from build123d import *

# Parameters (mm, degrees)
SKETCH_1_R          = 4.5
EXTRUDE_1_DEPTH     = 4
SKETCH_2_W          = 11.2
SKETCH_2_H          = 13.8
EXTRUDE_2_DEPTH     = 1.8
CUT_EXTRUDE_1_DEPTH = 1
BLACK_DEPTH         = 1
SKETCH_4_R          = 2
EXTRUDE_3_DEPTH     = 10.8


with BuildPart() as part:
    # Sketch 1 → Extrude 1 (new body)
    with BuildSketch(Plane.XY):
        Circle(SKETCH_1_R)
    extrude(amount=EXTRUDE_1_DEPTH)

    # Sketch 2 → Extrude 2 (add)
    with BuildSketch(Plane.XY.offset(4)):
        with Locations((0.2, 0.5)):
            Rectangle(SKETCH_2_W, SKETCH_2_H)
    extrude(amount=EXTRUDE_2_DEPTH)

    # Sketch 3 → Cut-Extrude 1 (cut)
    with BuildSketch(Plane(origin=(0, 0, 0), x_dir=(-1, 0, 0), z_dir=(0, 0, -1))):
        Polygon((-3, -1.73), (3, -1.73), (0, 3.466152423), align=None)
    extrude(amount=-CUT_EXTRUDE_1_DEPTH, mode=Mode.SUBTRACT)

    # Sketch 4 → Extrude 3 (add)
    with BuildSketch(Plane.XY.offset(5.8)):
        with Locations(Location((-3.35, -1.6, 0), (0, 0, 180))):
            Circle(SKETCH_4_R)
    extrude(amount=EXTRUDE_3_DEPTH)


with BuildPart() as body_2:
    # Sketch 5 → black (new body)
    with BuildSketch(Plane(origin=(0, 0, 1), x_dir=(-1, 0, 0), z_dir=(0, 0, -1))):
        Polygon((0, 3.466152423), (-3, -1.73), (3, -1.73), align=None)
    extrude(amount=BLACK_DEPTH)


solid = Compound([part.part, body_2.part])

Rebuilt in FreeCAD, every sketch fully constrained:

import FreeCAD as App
import Part
import Sketcher
Q = App.Units.Quantity


def add_polygon(sketch, points):
    """Adds a closed chain of lines whose ends are joined by coincident constraints."""
    first, n = sketch.GeometryCount, len(points)
    for a, b in zip(points, points[1:] + points[:1]):
        sketch.addGeometry(Part.LineSegment(App.Vector(*a, 0), App.Vector(*b, 0)), False)
    for i in range(n):
        sketch.addConstraint(Sketcher.Constraint("Coincident", first + i, 2, first + (i + 1) % n, 1))

doc = App.newDocument("Part")
body = doc.addObject("PartDesign::Body", "Body")

sketch1 = body.newObject("Sketcher::SketchObject", "Sketch")
sketch1.AttachmentSupport = (doc.getObject("XY_Plane"), [""])
sketch1.MapMode = "FlatFace"
sketch1.addGeometry(Part.Circle(App.Vector(0, 0, 0), App.Vector(0, 0, 1), 4.5), False)
sketch1.addConstraint(Sketcher.Constraint("Coincident", 0, 3, -1, 1))
sketch1.addConstraint(Sketcher.Constraint("Diameter", 0, Q("9 mm")))
pad1 = body.newObject("PartDesign::Pad", "Pad")
pad1.Profile = sketch1
pad1.Length = 4

sketch2 = body.newObject("Sketcher::SketchObject", "Sketch001")
sketch2.AttachmentSupport = (doc.getObject("XY_Plane"), [""])
sketch2.MapMode = "FlatFace"
sketch2.AttachmentOffset = App.Placement(App.Vector(0, 0, 4), App.Rotation())
add_polygon(sketch2, [(-5.4, 7.4), (-5.4, -6.4), (5.8, -6.4), (5.8, 7.4)])
sketch2.addConstraint(Sketcher.Constraint("Vertical", 0))
sketch2.addConstraint(Sketcher.Constraint("Horizontal", 1))
sketch2.addConstraint(Sketcher.Constraint("Vertical", 2))
sketch2.addConstraint(Sketcher.Constraint("Horizontal", 3))
sketch2.addConstraint(Sketcher.Constraint("DistanceX", 1, 1, 1, 2, Q("11.2 mm")))
sketch2.addConstraint(Sketcher.Constraint("DistanceY", 0, 2, 0, 1, Q("13.8 mm")))
sketch2.addConstraint(Sketcher.Constraint("DistanceX", 0, 2, -1, 1, Q("5.4 mm")))
sketch2.addConstraint(Sketcher.Constraint("DistanceY", 0, 2, -1, 1, Q("6.4 mm")))
pad2 = body.newObject("PartDesign::Pad", "Pad001")
pad2.Profile = sketch2
pad2.Length = 1.8

sketch3 = body.newObject("Sketcher::SketchObject", "Sketch002")
sketch3.AttachmentSupport = (doc.getObject("XY_Plane"), [""])
sketch3.MapMode = "FlatFace"
add_polygon(sketch3, [(3, -1.73), (-3, -1.73), (0, 3.466152)])
sketch3.addConstraint(Sketcher.Constraint("Horizontal", 0))
sketch3.addConstraint(Sketcher.Constraint("PointOnObject", 1, 2, -2))
sketch3.addConstraint(Sketcher.Constraint("Equal", 1, 2))
sketch3.addConstraint(Sketcher.Constraint("DistanceX", 0, 2, 0, 1, Q("6 mm")))
sketch3.addConstraint(Sketcher.Constraint("Angle", 1, Q("60 deg")))
sketch3.addConstraint(Sketcher.Constraint("DistanceY", 0, 2, -1, 1, Q("1.73 mm")))
pocket1 = body.newObject("PartDesign::Pocket", "Pocket")
pocket1.Profile = sketch3
pocket1.Length = 1
pocket1.Reversed = True

sketch4 = body.newObject("Sketcher::SketchObject", "Sketch003")
sketch4.AttachmentSupport = (doc.getObject("XY_Plane"), [""])
sketch4.MapMode = "FlatFace"
sketch4.AttachmentOffset = App.Placement(App.Vector(0, 0, 5.8), App.Rotation())
sketch4.addGeometry(Part.Circle(App.Vector(-3.35, -1.6, 0), App.Vector(0, 0, 1), 2), False)
sketch4.addConstraint(Sketcher.Constraint("Diameter", 0, Q("4 mm")))
sketch4.addConstraint(Sketcher.Constraint("DistanceY", 0, 3, -1, 1, Q("1.6 mm")))
sketch4.addConstraint(Sketcher.Constraint("DistanceX", 0, 3, -1, 1, Q("3.35 mm")))
pad3 = body.newObject("PartDesign::Pad", "Pad002")
pad3.Profile = sketch4
pad3.Length = 10.8
body2 = doc.addObject("PartDesign::Body", "Body001")

sketch5 = body2.newObject("Sketcher::SketchObject", "Sketch004")
sketch5.AttachmentSupport = (doc.getObject("XY_Plane001"), [""])
sketch5.MapMode = "FlatFace"
sketch5.AttachmentOffset = App.Placement(App.Vector(0, 0, 1), App.Rotation())
add_polygon(sketch5, [(0, 3.466152), (3, -1.73), (-3, -1.73)])
sketch5.addConstraint(Sketcher.Constraint("Horizontal", 1))
sketch5.addConstraint(Sketcher.Constraint("PointOnObject", 2, 2, -2))
sketch5.addConstraint(Sketcher.Constraint("Equal", 0, 2))
sketch5.addConstraint(Sketcher.Constraint("DistanceX", 1, 2, 1, 1, Q("6 mm")))
sketch5.addConstraint(Sketcher.Constraint("Angle", 0, Q("-60 deg")))
sketch5.addConstraint(Sketcher.Constraint("DistanceY", 0, 2, -1, 1, Q("1.73 mm")))
pad4 = body2.newObject("PartDesign::Pad", "Pad003")
pad4.Profile = sketch5
pad4.Length = 1
pad4.Reversed = True

doc.recompute()
